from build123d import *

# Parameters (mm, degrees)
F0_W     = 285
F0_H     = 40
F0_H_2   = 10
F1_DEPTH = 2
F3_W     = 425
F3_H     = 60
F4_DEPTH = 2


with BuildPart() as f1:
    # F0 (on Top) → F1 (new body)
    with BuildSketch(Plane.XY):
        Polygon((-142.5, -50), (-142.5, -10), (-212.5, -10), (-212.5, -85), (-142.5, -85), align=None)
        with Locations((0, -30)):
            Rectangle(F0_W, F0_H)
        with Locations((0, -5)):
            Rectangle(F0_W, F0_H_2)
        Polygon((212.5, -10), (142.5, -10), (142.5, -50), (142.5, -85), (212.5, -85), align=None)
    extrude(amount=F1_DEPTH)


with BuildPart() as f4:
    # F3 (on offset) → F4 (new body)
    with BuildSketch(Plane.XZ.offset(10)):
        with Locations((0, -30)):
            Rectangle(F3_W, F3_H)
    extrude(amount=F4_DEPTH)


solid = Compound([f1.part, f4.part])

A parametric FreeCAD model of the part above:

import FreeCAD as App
import Part
import Sketcher
Q = App.Units.Quantity

doc = App.newDocument("Part")
params = doc.addObject("Spreadsheet::Sheet", "Params")
for row, (alias, value) in enumerate([
    ("sketch1_width", "70 mm"),
    ("sketch1_width2", "285 mm"),
    ("sketch1_height", "75 mm"),
    ("sketch1_height2", "35 mm"),
    ("sketch1_height3", "10 mm"),
    ("pad1_length", "2 mm"),
    ("sketch2_width", "425 mm"),
    ("sketch2_height", "60 mm"),
    ("pad2_length", "2 mm"),
], start=1):
    params.set(f"A{row}", alias)
    params.set(f"B{row}", "=" + value)
    params.setAlias(f"B{row}", alias)

body = doc.addObject("PartDesign::Body", "Body")

sketch1 = body.newObject("Sketcher::SketchObject", "Sketch")
sketch1.AttachmentSupport = (doc.getObject("XY_Plane"), [""])
sketch1.MapMode = "FlatFace"
sketch1.addGeometry([
    Part.LineSegment(App.Vector(-212, -10, 0), App.Vector(-212, -85, 0)),
    Part.LineSegment(App.Vector(-212, -85, 0), App.Vector(-142, -85, 0)),
    Part.LineSegment(App.Vector(-142, -85, 0), App.Vector(-142, -50, 0)),
    Part.LineSegment(App.Vector(-142, -50, 0), App.Vector(142, -50, 0)),
    Part.LineSegment(App.Vector(142, -50, 0), App.Vector(142, -85, 0)),
    Part.LineSegment(App.Vector(142, -85, 0), App.Vector(212, -85, 0)),
    Part.LineSegment(App.Vector(212, -85, 0), App.Vector(212, -10, 0)),
    Part.LineSegment(App.Vector(212, -10, 0), App.Vector(142, -10, 0)),
    Part.LineSegment(App.Vector(142, -10, 0), App.Vector(142, 0, 0)),
    Part.LineSegment(App.Vector(142, 0, 0), App.Vector(-142, 0, 0)),
    Part.LineSegment(App.Vector(-142, 0, 0), App.Vector(-142, -10, 0)),
    Part.LineSegment(App.Vector(-142, -10, 0), App.Vector(-212, -10, 0)),
], False)
sketch1.addConstraint([
    Sketcher.Constraint("Coincident", 0, 2, 1, 1),
    Sketcher.Constraint("Coincident", 1, 2, 2, 1),
    Sketcher.Constraint("Coincident", 2, 2, 3, 1),
    Sketcher.Constraint("Coincident", 3, 2, 4, 1),
    Sketcher.Constraint("Coincident", 4, 2, 5, 1),
    Sketcher.Constraint("Coincident", 5, 2, 6, 1),
    Sketcher.Constraint("Coincident", 6, 2, 7, 1),
    Sketcher.Constraint("Coincident", 7, 2, 8, 1),
    Sketcher.Constraint("Coincident", 8, 2, 9, 1),
    Sketcher.Constraint("Coincident", 9, 2, 10, 1),
    Sketcher.Constraint("Coincident", 10, 2, 11, 1),
    Sketcher.Constraint("Coincident", 11, 2, 0, 1),
    Sketcher.Constraint("Vertical", 0),
    Sketcher.Constraint("Horizontal", 1),
    Sketcher.Constraint("Vertical", 2),
    Sketcher.Constraint("Horizontal", 3),
    Sketcher.Constraint("Vertical", 4),
    Sketcher.Constraint("Horizontal", 5),
    Sketcher.Constraint("Vertical", 6),
    Sketcher.Constraint("Horizontal", 7),
    Sketcher.Constraint("Vertical", 8),
    Sketcher.Constraint("Horizontal", 9),
    Sketcher.Constraint("Vertical", 10),
    Sketcher.Constraint("Horizontal", 11),
    Sketcher.Constraint("Symmetric", 8, 2, 9, 2, -1, 1),
    Sketcher.Constraint("Symmetric", 1, 2, 4, 2, -2),
    Sketcher.Constraint("Symmetric", 6, 2, 11, 2, -2),
    Sketcher.Constraint("Vertical", 4, 2, 7, 2),
    Sketcher.Constraint("DistanceX", 1, 1, 1, 2, Q("70 mm")),
    Sketcher.Constraint("DistanceX", 3, 1, 3, 2, Q("285 mm")),
    Sketcher.Constraint("DistanceY", 0, 2, 0, 1, Q("75 mm")),
    Sketcher.Constraint("DistanceY", 2, 1, 2, 2, Q("35 mm")),
    Sketcher.Constraint("DistanceY", 8, 1, 8, 2, Q("10 mm")),
])
sketch1.setExpression("Constraints[28]", "Params.sketch1_width")
sketch1.setExpression("Constraints[29]", "Params.sketch1_width2")
sketch1.setExpression("Constraints[30]", "Params.sketch1_height")
sketch1.setExpression("Constraints[31]", "Params.sketch1_height2")
sketch1.setExpression("Constraints[32]", "Params.sketch1_height3")
pad1 = body.newObject("PartDesign::Pad", "Pad")
pad1.Profile = sketch1
pad1.setExpression("Length", "Params.pad1_length")
body2 = doc.addObject("PartDesign::Body", "Body001")

sketch2 = body2.newObject("Sketcher::SketchObject", "Sketch001")
sketch2.AttachmentSupport = (doc.getObject("XZ_Plane001"), [""])
sketch2.MapMode = "FlatFace"
sketch2.AttachmentOffset = App.Placement(App.Vector(0, 0, 10), App.Rotation())
sketch2.addGeometry([
    Part.LineSegment(App.Vector(-212, 0, 0), App.Vector(-212, -60, 0)),
    Part.LineSegment(App.Vector(-212, -60, 0), App.Vector(212, -60, 0)),
    Part.LineSegment(App.Vector(212, -60, 0), App.Vector(212, 0, 0)),
    Part.LineSegment(App.Vector(212, 0, 0), App.Vector(-212, 0, 0)),
], False)
sketch2.addConstraint([
    Sketcher.Constraint("Coincident", 0, 2, 1, 1),
    Sketcher.Constraint("Coincident", 1, 2, 2, 1),
    Sketcher.Constraint("Coincident", 2, 2, 3, 1),
    Sketcher.Constraint("Coincident", 3, 2, 0, 1),
    Sketcher.Constraint("Vertical", 0),
    Sketcher.Constraint("Horizontal", 1),
    Sketcher.Constraint("Vertical", 2),
    Sketcher.Constraint("Horizontal", 3),
    Sketcher.Constraint("Symmetric", 2, 2, 3, 2, -1, 1),
    Sketcher.Constraint("DistanceX", 1, 1, 1, 2, Q("425 mm")),
    Sketcher.Constraint("DistanceY", 0, 2, 0, 1, Q("60 mm")),
])
sketch2.setExpression("Constraints[9]", "Params.sketch2_width")
sketch2.setExpression("Constraints[10]", "Params.sketch2_height")
pad2 = body2.newObject("PartDesign::Pad", "Pad001")
pad2.Profile = sketch2
pad2.setExpression("Length", "Params.pad2_length")

doc.recompute()
